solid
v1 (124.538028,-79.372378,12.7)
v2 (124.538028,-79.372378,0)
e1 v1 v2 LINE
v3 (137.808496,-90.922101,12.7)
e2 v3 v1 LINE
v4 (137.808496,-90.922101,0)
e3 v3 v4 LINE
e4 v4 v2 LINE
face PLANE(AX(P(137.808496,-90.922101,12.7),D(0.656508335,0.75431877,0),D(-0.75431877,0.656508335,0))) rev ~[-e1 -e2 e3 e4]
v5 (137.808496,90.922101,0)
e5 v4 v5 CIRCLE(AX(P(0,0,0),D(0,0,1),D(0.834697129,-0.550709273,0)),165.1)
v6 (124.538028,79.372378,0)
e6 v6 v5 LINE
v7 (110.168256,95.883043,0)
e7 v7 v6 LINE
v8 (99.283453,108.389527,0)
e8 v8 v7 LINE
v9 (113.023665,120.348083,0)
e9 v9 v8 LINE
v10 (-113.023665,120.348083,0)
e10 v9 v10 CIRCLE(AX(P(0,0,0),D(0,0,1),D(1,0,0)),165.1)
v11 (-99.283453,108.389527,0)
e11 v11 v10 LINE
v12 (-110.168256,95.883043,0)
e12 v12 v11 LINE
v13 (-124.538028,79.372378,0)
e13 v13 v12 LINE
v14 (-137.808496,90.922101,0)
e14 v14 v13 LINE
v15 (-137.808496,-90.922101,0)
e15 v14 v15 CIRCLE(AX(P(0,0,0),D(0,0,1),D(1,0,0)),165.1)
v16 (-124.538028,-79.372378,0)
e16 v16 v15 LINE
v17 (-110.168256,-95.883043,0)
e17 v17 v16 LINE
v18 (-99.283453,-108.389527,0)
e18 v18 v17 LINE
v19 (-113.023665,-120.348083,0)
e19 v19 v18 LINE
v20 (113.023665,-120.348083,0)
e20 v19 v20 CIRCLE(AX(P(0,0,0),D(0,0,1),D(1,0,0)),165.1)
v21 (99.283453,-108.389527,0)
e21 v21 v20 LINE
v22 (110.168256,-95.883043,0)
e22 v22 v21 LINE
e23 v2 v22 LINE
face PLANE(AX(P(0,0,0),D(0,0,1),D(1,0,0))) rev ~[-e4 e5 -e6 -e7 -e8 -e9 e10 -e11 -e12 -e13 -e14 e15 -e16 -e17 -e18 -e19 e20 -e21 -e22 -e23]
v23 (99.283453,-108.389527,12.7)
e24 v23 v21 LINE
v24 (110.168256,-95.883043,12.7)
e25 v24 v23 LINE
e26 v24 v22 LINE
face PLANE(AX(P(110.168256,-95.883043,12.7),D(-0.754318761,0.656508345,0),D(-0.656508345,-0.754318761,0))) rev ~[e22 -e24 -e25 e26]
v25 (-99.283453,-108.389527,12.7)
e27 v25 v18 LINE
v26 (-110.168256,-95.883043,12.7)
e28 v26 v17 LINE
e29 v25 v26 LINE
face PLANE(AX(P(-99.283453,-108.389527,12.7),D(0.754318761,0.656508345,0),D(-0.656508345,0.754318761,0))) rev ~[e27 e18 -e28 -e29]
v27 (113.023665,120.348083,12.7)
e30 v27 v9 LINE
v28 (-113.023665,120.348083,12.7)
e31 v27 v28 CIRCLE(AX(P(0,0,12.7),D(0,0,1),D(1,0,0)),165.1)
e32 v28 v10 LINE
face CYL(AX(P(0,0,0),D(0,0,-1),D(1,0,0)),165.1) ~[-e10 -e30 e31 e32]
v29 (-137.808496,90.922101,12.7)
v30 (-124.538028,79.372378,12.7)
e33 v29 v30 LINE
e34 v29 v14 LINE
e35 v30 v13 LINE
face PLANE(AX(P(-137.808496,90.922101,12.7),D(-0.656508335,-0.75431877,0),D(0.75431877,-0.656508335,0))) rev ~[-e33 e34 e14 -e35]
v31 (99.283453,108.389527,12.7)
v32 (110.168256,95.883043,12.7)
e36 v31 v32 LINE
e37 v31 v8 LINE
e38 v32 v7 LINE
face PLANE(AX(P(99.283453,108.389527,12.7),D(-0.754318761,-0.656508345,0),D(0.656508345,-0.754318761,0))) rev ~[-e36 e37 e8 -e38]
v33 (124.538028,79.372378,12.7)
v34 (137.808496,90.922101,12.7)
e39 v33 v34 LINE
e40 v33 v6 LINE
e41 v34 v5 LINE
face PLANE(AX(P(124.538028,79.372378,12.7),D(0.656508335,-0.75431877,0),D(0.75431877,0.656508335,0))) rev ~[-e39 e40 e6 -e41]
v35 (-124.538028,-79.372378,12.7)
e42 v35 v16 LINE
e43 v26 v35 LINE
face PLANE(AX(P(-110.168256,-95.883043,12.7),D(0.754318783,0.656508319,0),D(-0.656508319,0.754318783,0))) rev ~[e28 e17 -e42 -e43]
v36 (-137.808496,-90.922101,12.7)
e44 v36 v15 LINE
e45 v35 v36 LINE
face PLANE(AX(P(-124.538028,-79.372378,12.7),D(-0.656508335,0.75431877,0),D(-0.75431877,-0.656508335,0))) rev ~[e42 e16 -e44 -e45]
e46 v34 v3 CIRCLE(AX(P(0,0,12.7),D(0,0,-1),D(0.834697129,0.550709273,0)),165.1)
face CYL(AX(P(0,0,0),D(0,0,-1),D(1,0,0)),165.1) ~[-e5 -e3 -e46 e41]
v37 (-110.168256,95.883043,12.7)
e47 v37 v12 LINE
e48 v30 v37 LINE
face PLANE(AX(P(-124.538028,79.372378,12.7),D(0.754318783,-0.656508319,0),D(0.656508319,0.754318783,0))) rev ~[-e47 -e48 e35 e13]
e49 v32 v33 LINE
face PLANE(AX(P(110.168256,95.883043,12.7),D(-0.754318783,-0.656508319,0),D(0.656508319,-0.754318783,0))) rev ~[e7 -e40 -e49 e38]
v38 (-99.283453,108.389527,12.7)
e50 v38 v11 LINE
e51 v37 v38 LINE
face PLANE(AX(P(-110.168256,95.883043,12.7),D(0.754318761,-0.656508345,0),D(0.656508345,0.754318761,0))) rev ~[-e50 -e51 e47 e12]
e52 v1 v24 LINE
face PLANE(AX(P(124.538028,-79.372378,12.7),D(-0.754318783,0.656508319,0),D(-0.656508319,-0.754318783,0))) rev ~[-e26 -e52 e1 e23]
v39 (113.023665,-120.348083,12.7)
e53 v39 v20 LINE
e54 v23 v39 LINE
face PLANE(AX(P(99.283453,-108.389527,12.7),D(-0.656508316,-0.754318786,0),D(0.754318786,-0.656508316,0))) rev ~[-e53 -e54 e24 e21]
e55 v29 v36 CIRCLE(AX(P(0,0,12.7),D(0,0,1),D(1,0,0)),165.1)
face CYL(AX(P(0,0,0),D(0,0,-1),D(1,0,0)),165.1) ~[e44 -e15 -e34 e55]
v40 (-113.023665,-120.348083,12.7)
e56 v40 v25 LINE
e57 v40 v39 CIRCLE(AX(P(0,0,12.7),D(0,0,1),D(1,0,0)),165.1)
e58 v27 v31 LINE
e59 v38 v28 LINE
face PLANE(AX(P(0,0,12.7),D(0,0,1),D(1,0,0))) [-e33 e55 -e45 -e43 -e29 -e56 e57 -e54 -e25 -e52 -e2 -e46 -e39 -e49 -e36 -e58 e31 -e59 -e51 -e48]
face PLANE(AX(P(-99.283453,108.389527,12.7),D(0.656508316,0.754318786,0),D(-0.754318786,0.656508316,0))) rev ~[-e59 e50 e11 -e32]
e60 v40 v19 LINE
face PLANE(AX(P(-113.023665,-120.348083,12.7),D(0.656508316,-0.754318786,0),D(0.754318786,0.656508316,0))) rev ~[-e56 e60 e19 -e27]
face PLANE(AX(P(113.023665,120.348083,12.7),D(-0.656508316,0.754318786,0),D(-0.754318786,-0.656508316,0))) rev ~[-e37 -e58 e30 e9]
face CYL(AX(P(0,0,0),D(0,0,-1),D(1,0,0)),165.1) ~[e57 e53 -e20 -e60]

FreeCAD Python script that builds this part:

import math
import FreeCAD as App
import Part
import Sketcher
Q = App.Units.Quantity

doc = App.newDocument("Part")
params = doc.addObject("Spreadsheet::Sheet", "Params")
for row, (alias, value) in enumerate([
    ("sketch1_diameter", "13 in"),
    ("pad1_length", "0.5 in"),
    ("pocket1_length", "1 in"),
], start=1):
    params.set(f"A{row}", alias)
    params.set(f"B{row}", "=" + value)
    params.setAlias(f"B{row}", alias)

body = doc.addObject("PartDesign::Body", "Body")

sketch1 = body.newObject("Sketcher::SketchObject", "Sketch")
sketch1.AttachmentSupport = (doc.getObject("XY_Plane"), [""])
sketch1.MapMode = "FlatFace"
sketch1.addGeometry(Part.Circle(App.Vector(0, 0, 0), App.Vector(0, 0, 1), 165), False)
sketch1.addConstraint([
    Sketcher.Constraint("Coincident", 0, 3, -1, 1),
    Sketcher.Constraint("Diameter", 0, Q("13 in")),
])
sketch1.setExpression("Constraints[1]", "Params.sketch1_diameter")
pad1 = body.newObject("PartDesign::Pad", "Pad")
pad1.Profile = sketch1
pad1.setExpression("Length", "Params.pad1_length")

sketch2 = body.newObject("Sketcher::SketchObject", "Sketch001")
sketch2.AttachmentSupport = (doc.getObject("XY_Plane"), [""])
sketch2.MapMode = "FlatFace"
sketch2.AttachmentOffset = App.Placement(App.Vector(0, 0, 0.5 * 25.4), App.Rotation())
sketch2.addGeometry([
    Part.LineSegment(App.Vector(137.808496, -90.922101, 0), App.Vector(124.538028, -79.372378, 0)),
    Part.LineSegment(App.Vector(124.538028, -79.372378, 0), App.Vector(110.168256, -95.883043, 0)),
    Part.LineSegment(App.Vector(110.168256, -95.883043, 0), App.Vector(99.283453, -108.389527, 0)),
    Part.LineSegment(App.Vector(99.283453, -108.389527, 0), App.Vector(113.023665, -120.348083, 0)),
    Part.ArcOfCircle(Part.Circle(App.Vector(0.000046, -0.000042, 0), App.Vector(0, 0, 1), 165.099938), math.radians(-46.797651), math.radians(-41.034119)),
    Part.ArcOfCircle(Part.Circle(App.Vector(-0.000027, 0.000021, 0), App.Vector(0, 0, 1), 165.100034), math.radians(-41.034119), math.radians(-33.415687)),
    Part.ArcOfCircle(Part.Circle(App.Vector(-0.000046, -0.000042, 0), App.Vector(0, 0, 1), 165.099938), math.radians(-138.965881), math.radians(-133.202349)),
    Part.LineSegment(App.Vector(-113.023665, -120.348083, 0), App.Vector(-99.283453, -108.389527, 0)),
    Part.LineSegment(App.Vector(-99.283453, -108.389527, 0), App.Vector(-110.168256, -95.883043, 0)),
    Part.LineSegment(App.Vector(-110.168256, -95.883043, 0), App.Vector(-124.538028, -79.372378, 0)),
    Part.LineSegment(App.Vector(-124.538028, -79.372378, 0), App.Vector(-137.808496, -90.922101, 0)),
    Part.ArcOfCircle(Part.Circle(App.Vector(0.000027, 0.000021, 0), App.Vector(0, 0, 1), 165.100034), math.radians(-146.584313), math.radians(-138.965881)),
    Part.ArcOfCircle(Part.Circle(App.Vector(0.000027, -0.000021, 0), App.Vector(0, 0, 1), 165.100034), math.radians(138.965881), math.radians(146.584313)),
    Part.LineSegment(App.Vector(-137.808496, 90.922101, 0), App.Vector(-124.538028, 79.372378, 0)),
    Part.LineSegment(App.Vector(-124.538028, 79.372378, 0), App.Vector(-110.168256, 95.883043, 0)),
    Part.LineSegment(App.Vector(-110.168256, 95.883043, 0), App.Vector(-99.283453, 108.389527, 0)),
    Part.LineSegment(App.Vector(-99.283453, 108.389527, 0), App.Vector(-113.023665, 120.348083, 0)),
    Part.ArcOfCircle(Part.Circle(App.Vector(-0.000046, 0.000042, 0), App.Vector(0, 0, 1), 165.099938), math.radians(133.202349), math.radians(138.965881)),
    Part.LineSegment(App.Vector(99.283453, 108.389527, 0), App.Vector(110.168256, 95.883043, 0)),
    Part.LineSegment(App.Vector(110.168256, 95.883043, 0), App.Vector(124.538028, 79.372378, 0)),
    Part.LineSegment(App.Vector(124.538028, 79.372378, 0), App.Vector(137.808496, 90.922101, 0)),
    Part.ArcOfCircle(Part.Circle(App.Vector(-0.000027, -0.000021, 0), App.Vector(0, 0, 1), 165.100034), math.radians(33.415687), math.radians(41.034119)),
    Part.ArcOfCircle(Part.Circle(App.Vector(0.000046, 0.000042, 0), App.Vector(0, 0, 1), 165.099938), math.radians(41.034119), math.radians(46.797651)),
    Part.LineSegment(App.Vector(113.023665, 120.348083, 0), App.Vector(99.283453, 108.389527, 0)),
], False)
sketch2.addConstraint([
    Sketcher.Constraint("Coincident", 0, 2, 1, 1),
    Sketcher.Constraint("Coincident", 1, 2, 2, 1),
    Sketcher.Constraint("Coincident", 2, 2, 3, 1),
    Sketcher.Constraint("Coincident", 3, 2, 4, 1),
    Sketcher.Constraint("Tangent", 4, 2, 5, 1),
    Sketcher.Constraint("Coincident", 5, 2, 0, 1),
    Sketcher.Constraint("Coincident", 6, 2, 7, 1),
    Sketcher.Constraint("Coincident", 7, 2, 8, 1),
    Sketcher.Constraint("Coincident", 8, 2, 9, 1),
    Sketcher.Constraint("Coincident", 9, 2, 10, 1),
    Sketcher.Constraint("Coincident", 10, 2, 11, 1),
    Sketcher.Constraint("Tangent", 11, 2, 6, 1),
    Sketcher.Constraint("Coincident", 12, 2, 13, 1),
    Sketcher.Constraint("Coincident", 13, 2, 14, 1),
    Sketcher.Constraint("Coincident", 14, 2, 15, 1),
    Sketcher.Constraint("Coincident", 15, 2, 16, 1),
    Sketcher.Constraint("Coincident", 16, 2, 17, 1),
    Sketcher.Constraint("Tangent", 17, 2, 12, 1),
    Sketcher.Constraint("Coincident", 18, 2, 19, 1),
    Sketcher.Constraint("Coincident", 19, 2, 20, 1),
    Sketcher.Constraint("Coincident", 20, 2, 21, 1),
    Sketcher.Constraint("Tangent", 21, 2, 22, 1),
    Sketcher.Constraint("Coincident", 22, 2, 23, 1),
    Sketcher.Constraint("Coincident", 23, 2, 18, 1),
    Sketcher.Constraint("Equal", 4, 6),
    Sketcher.Constraint("Equal", 5, 11),
    Sketcher.Constraint("Equal", 11, 12),
    Sketcher.Constraint("Equal", 6, 17),
    Sketcher.Constraint("Equal", 12, 21),
    Sketcher.Constraint("Equal", 17, 22),
    Sketcher.Constraint("Symmetric", 5, 3, 12, 3, -1, 1),
    Sketcher.Constraint("Symmetric", 11, 3, 21, 3, -1, 1),
    Sketcher.Constraint("Symmetric", 0, 2, 13, 2, -1, 1),
    Sketcher.Constraint("Symmetric", 1, 2, 14, 2, -1, 1),
    Sketcher.Constraint("Symmetric", 2, 2, 15, 2, -1, 1),
    Sketcher.Constraint("Symmetric", 8, 2, 18, 2, -1, 1),
    Sketcher.Constraint("Symmetric", 9, 2, 19, 2, -1, 1),
    Sketcher.Constraint("Symmetric", 7, 2, 23, 2, -1, 1),
    Sketcher.Constraint("Symmetric", 4, 3, 6, 3, -2),
    Sketcher.Constraint("Symmetric", 2, 2, 7, 2, -2),
    Sketcher.Constraint("Symmetric", 1, 2, 8, 2, -2),
    Sketcher.Constraint("Symmetric", 0, 2, 9, 2, -2),
    Sketcher.Constraint("Perpendicular", 0, 1),
    Sketcher.Constraint("Parallel", 1, 2),
    Sketcher.Constraint("Perpendicular", 2, 3),
    Sketcher.Constraint("Perpendicular", 7, 8),
    Sketcher.Constraint("Perpendicular", 9, 10),
    Sketcher.Constraint("Parallel", 3, 13),
    Sketcher.Constraint("Perpendicular", 15, 16),
    Sketcher.Constraint("Perpendicular", 19, 20),
    Sketcher.Constraint("Parallel", 20, 23),
    Sketcher.Constraint("Horizontal", 2, 2, 4, 2),
    Sketcher.Constraint("Horizontal", 7, 2, 11, 2),
    Sketcher.Constraint("Horizontal", 15, 2, 17, 2),
    Sketcher.Constraint("Horizontal", 17, 2, 21, 2),
    Sketcher.Constraint("Vertical", 0, 2, 4, 2),
    Sketcher.Constraint("Radius", 4, 165.099938),
    Sketcher.Constraint("Radius", 5, 165.100034),
    Sketcher.Constraint("DistanceY", 10, 2, -1, 1, 90.922101),
    Sketcher.Constraint("DistanceX", 12, 3, 0, 2, 124.538001),
    Sketcher.Constraint("DistanceY", 0, 2, 11, 3, 79.372399),
    Sketcher.Constraint("DistanceY", 1, 2, 4, 3, 95.883001),
    Sketcher.Constraint("DistanceX", 7, 2, 4, 3, 99.283499),
    Sketcher.Constraint("Distance", 1, 21.88818),
])
pocket1 = body.newObject("PartDesign::Pocket", "Pocket")
pocket1.Profile = sketch2
pocket1.setExpression("Length", "Params.pocket1_length")

doc.recompute()
